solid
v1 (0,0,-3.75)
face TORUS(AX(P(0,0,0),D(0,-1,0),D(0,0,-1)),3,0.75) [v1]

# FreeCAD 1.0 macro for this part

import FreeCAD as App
import Part
import Sketcher
Q = App.Units.Quantity

doc = App.newDocument("Part")
body = doc.addObject("PartDesign::Body", "Body")

# Sketch on XY plane
sketch1 = body.newObject("Sketcher::SketchObject", "Sketch")
sketch1.AttachmentSupport = (doc.getObject("XY_Plane"), [""])
sketch1.MapMode = "FlatFace"
sketch1.addGeometry(Part.Circle(App.Vector(-3, 0, 0), App.Vector(0, 0, 1), 0.8), False)
sketch1.addConstraint(Sketcher.Constraint("PointOnObject", 0, 3, -1))
sketch1.addConstraint(Sketcher.Constraint("Diameter", 0, Q("1.5 mm")))
sketch1.addConstraint(Sketcher.Constraint("DistanceX", 0, 3, -1, 1, Q("3 mm")))
revolution = body.newObject("PartDesign::Revolution", "Revolution")
revolution.Profile = sketch1
revolution.ReferenceAxis = (sketch1, ["V_Axis"])
revolution.Angle = 360

doc.recompute()
